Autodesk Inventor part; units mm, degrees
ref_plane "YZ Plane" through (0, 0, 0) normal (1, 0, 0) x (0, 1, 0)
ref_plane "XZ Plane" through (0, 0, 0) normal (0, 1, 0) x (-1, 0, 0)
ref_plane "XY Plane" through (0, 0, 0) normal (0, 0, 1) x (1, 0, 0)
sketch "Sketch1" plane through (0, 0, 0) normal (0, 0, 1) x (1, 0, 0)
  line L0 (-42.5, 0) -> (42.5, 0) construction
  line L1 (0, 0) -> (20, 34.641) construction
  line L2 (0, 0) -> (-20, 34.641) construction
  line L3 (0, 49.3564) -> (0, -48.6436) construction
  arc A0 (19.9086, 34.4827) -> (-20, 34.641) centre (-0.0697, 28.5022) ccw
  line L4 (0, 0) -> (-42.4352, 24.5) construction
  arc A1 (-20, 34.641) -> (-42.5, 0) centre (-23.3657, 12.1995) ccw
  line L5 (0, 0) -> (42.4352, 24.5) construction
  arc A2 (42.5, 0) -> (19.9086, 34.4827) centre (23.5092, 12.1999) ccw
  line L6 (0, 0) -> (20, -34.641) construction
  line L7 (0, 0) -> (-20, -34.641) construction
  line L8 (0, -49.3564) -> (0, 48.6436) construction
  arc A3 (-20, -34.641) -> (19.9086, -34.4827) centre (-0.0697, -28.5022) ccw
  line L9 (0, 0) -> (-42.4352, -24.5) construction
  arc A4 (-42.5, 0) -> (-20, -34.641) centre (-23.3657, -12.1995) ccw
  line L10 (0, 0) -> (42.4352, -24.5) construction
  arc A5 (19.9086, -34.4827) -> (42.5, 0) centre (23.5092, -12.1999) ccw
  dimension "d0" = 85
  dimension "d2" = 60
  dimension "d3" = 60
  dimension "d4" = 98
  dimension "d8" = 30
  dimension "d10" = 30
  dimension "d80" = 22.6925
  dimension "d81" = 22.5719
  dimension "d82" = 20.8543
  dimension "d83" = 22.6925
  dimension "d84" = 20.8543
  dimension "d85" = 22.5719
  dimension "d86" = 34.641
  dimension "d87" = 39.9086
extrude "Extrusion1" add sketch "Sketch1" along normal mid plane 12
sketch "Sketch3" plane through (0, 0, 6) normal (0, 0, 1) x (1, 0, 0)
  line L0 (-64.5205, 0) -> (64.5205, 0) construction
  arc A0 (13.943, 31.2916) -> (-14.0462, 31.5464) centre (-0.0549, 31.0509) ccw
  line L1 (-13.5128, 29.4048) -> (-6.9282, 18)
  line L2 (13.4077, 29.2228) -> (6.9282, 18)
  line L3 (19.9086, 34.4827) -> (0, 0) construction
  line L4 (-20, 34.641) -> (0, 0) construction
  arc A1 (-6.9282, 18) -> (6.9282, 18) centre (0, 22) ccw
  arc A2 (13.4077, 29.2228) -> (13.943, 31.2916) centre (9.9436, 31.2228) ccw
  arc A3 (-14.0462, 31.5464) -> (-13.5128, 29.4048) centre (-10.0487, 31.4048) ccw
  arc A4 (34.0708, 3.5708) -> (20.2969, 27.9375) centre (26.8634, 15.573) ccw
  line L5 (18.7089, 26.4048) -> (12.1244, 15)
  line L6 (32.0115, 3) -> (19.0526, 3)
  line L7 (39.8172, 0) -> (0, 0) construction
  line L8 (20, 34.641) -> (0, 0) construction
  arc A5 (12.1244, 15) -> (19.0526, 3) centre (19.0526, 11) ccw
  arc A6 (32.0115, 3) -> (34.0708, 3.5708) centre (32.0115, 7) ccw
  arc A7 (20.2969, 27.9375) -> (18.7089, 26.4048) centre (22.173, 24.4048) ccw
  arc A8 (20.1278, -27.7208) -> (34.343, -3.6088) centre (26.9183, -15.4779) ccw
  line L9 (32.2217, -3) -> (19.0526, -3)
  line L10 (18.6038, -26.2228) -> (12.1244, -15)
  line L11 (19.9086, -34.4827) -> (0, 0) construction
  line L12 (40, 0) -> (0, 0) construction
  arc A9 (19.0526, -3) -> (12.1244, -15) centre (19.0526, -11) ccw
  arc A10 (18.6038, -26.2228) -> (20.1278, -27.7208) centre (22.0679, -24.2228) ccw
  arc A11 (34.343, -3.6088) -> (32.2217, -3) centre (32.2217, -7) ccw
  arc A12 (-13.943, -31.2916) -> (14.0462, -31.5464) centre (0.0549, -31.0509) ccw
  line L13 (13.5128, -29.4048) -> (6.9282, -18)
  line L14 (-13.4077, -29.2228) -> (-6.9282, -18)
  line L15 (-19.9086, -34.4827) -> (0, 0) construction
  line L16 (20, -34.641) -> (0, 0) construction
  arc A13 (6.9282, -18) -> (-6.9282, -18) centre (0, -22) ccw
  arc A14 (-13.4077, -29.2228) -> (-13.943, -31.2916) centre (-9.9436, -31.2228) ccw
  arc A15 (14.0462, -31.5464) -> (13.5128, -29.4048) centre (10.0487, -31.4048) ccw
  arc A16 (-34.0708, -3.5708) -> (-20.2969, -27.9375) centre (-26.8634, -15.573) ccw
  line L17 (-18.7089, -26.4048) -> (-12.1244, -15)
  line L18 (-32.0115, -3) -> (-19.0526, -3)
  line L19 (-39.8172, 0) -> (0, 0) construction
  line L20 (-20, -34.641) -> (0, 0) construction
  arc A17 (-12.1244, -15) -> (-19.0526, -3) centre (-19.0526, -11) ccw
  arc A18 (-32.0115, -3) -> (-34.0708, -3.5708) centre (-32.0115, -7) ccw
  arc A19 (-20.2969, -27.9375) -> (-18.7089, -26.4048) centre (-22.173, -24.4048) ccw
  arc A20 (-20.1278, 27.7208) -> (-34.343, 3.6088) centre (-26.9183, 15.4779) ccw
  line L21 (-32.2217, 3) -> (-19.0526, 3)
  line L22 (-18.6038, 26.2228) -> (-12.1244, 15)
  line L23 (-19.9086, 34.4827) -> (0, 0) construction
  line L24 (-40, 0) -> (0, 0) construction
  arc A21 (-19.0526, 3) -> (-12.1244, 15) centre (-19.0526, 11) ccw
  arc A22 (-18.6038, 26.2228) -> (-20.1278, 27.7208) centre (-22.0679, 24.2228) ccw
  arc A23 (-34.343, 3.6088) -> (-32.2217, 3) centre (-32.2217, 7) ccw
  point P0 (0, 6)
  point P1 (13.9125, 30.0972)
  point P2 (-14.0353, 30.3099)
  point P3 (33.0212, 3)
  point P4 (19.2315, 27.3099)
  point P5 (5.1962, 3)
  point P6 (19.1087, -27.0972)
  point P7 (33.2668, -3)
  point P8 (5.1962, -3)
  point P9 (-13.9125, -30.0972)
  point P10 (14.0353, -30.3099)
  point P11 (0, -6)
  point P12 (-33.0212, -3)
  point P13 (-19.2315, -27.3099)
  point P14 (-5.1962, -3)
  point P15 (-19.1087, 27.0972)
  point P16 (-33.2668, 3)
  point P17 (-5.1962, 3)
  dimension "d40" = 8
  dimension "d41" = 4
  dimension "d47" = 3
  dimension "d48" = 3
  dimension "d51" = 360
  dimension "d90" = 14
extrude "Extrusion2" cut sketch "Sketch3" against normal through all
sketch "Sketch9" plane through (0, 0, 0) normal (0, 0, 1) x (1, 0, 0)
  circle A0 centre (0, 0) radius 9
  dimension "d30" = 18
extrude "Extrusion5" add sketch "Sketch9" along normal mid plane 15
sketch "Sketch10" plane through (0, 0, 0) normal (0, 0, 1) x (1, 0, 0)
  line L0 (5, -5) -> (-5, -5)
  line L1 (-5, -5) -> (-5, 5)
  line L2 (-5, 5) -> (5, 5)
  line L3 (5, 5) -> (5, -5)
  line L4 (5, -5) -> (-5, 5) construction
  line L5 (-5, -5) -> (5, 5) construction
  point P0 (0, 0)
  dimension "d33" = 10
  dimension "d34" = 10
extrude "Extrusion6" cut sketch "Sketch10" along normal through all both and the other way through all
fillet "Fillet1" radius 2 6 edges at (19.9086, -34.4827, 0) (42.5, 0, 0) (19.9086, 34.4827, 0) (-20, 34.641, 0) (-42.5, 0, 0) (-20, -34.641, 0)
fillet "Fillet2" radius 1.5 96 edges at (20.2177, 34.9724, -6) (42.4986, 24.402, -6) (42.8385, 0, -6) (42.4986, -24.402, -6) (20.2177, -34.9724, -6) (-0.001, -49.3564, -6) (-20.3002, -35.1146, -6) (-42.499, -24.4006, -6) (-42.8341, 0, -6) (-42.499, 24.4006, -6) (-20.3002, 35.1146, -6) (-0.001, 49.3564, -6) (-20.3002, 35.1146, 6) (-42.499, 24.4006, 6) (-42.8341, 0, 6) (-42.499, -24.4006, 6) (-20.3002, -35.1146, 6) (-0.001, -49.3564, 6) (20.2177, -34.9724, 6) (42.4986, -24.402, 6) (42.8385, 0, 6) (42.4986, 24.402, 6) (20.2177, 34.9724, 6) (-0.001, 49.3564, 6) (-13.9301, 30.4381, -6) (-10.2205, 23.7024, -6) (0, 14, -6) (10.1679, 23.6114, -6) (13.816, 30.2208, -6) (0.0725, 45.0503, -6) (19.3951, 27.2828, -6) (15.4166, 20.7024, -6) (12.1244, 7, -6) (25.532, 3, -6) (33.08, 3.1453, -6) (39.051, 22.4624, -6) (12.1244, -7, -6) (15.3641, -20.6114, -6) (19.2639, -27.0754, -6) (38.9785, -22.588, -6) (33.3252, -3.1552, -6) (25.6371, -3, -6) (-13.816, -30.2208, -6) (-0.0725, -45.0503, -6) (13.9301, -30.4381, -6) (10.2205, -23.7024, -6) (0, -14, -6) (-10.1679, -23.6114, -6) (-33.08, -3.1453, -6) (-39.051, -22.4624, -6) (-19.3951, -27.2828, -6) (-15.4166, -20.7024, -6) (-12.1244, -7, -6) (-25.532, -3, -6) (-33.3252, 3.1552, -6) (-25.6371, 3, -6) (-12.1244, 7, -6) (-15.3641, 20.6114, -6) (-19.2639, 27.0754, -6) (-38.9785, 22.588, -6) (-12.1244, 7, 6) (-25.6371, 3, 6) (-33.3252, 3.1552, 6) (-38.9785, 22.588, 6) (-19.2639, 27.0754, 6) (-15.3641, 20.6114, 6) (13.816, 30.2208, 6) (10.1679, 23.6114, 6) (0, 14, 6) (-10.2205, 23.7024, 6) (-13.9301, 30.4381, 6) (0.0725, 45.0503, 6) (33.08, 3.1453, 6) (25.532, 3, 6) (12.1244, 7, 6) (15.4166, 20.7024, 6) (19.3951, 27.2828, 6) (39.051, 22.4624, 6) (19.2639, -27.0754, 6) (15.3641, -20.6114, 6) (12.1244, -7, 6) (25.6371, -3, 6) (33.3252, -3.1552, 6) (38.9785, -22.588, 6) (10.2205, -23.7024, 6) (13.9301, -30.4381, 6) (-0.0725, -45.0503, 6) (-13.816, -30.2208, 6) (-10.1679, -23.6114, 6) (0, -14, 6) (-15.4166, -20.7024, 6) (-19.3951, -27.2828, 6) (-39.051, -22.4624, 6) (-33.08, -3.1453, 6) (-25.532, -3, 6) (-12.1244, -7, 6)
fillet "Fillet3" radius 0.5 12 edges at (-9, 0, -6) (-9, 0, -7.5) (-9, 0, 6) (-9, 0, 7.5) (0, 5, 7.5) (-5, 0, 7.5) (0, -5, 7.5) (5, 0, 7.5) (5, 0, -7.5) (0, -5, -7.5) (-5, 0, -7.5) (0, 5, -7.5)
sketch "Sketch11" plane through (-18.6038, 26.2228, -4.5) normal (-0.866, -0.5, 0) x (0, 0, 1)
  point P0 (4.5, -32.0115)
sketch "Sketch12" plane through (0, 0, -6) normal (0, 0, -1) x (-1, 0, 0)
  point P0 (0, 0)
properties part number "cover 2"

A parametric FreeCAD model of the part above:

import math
import FreeCAD as App
import Part
import Sketcher
Q = App.Units.Quantity


def edges_at(feature, points):
    """Names of the edges that pass closest to the given points."""
    edges = feature.Shape.Edges
    near = lambda p: min(range(len(edges)), key=lambda i: edges[i].distToShape(Part.Vertex(*p))[0])
    return sorted({f"Edge{near(p) + 1}" for p in points})


def add_polygon(sketch, points):
    """Adds a closed chain of lines whose ends are joined by coincident constraints."""
    first, n = sketch.GeometryCount, len(points)
    for a, b in zip(points, points[1:] + points[:1]):
        sketch.addGeometry(Part.LineSegment(App.Vector(*a, 0), App.Vector(*b, 0)), False)
    for i in range(n):
        sketch.addConstraint(Sketcher.Constraint("Coincident", first + i, 2, first + (i + 1) % n, 1))

doc = App.newDocument("Part")
params = doc.addObject("Spreadsheet::Sheet", "Params")
for row, (alias, value) in enumerate([
    ("pad1_length", "12 mm"),
    ("sketch2_radius", "4 mm"),
    ("sketch2_radius2", "14 mm"),
    ("sketch2_radius3", "8 mm"),
    ("sketch2_width", "1.94 mm"),
    ("sketch3_diameter", "18 mm"),
    ("pad2_length", "15 mm"),
    ("sketch4_width", "10 mm"),
    ("fillet_radius", "2 mm"),
    ("fillet2_radius", "1.5 mm"),
    ("fillet3_radius", "0.5 mm"),
], start=1):
    params.set(f"A{row}", alias)
    params.set(f"B{row}", "=" + value)
    params.setAlias(f"B{row}", alias)

body = doc.addObject("PartDesign::Body", "Body")

sketch1 = body.newObject("Sketcher::SketchObject", "Sketch")
sketch1.AttachmentSupport = (doc.getObject("XY_Plane"), [""])
sketch1.MapMode = "FlatFace"
sketch1.addGeometry([
    Part.ArcOfCircle(Part.Circle(App.Vector(24, 12, 0), App.Vector(0, 0, 1), 23), math.radians(-33), math.radians(99)),
    Part.ArcOfCircle(Part.Circle(App.Vector(0, 29, 0), App.Vector(0, 0, 1), 21), math.radians(17), math.radians(163)),
    Part.ArcOfCircle(Part.Circle(App.Vector(-23, 12, 0), App.Vector(0, 0, 1), 23), math.radians(81), math.radians(213)),
    Part.ArcOfCircle(Part.Circle(App.Vector(-23, -12, 0), App.Vector(0, 0, 1), 23), math.radians(147), math.radians(279)),
    Part.ArcOfCircle(Part.Circle(App.Vector(0, -29, 0), App.Vector(0, 0, 1), 21), math.radians(-163), math.radians(-17)),
    Part.ArcOfCircle(Part.Circle(App.Vector(24, -12, 0), App.Vector(0, 0, 1), 23), math.radians(-99), math.radians(33)),
], False)
sketch1.addConstraint([
    Sketcher.Constraint("Coincident", 0, 2, 1, 1),
    Sketcher.Constraint("Coincident", 1, 2, 2, 1),
    Sketcher.Constraint("Coincident", 2, 2, 3, 1),
    Sketcher.Constraint("Coincident", 3, 2, 4, 1),
    Sketcher.Constraint("Coincident", 4, 2, 5, 1),
    Sketcher.Constraint("Coincident", 5, 2, 0, 1),
    Sketcher.Constraint("Equal", 2, 3),
    Sketcher.Constraint("Equal", 1, 4),
    Sketcher.Constraint("Equal", 0, 5),
    Sketcher.Constraint("Symmetric", 2, 2, 5, 2, -1, 1),
    Sketcher.Constraint("Symmetric", 2, 3, 3, 3, -1),
    Sketcher.Constraint("Symmetric", 1, 3, 4, 3, -1),
    Sketcher.Constraint("Vertical", 0, 3, 5, 3),
    Sketcher.Constraint("Radius", 0, Q("22.5718 mm")),
    Sketcher.Constraint("Radius", 1, Q("20.8542 mm")),
    Sketcher.Constraint("Radius", 2, Q("22.6925 mm")),
    Sketcher.Constraint("DistanceY", -1, 1, 1, 2, Q("34.641 mm")),
    Sketcher.Constraint("DistanceX", 1, 2, -1, 1, Q("20 mm")),
    Sketcher.Constraint("DistanceY", -1, 1, 0, 3, Q("12.2 mm")),
    Sketcher.Constraint("DistanceX", 2, 2, -1, 1, Q("42.5 mm")),
    Sketcher.Constraint("DistanceX", 1, 2, 0, 2, Q("39.9085 mm")),
])
pad1 = body.newObject("PartDesign::Pad", "Pad")
pad1.Profile = sketch1
pad1.setExpression("Length", "Params.pad1_length")
pad1.Midplane = True

sketch2 = body.newObject("Sketcher::SketchObject", "Sketch001")
sketch2.AttachmentSupport = (doc.getObject("XY_Plane"), [""])
sketch2.MapMode = "FlatFace"
sketch2.AttachmentOffset = App.Placement(App.Vector(0, 0, 6), App.Rotation())
sketch2.addGeometry([
    Part.ArcOfCircle(Part.Circle(App.Vector(9.9, 31.2, 0), App.Vector(0, 0, 1), 4), math.radians(-30), math.radians(1)),
    Part.ArcOfCircle(Part.Circle(App.Vector(-0.1, 31.1, 0), App.Vector(0, 0, 1), 14), math.radians(1), math.radians(178)),
    Part.ArcOfCircle(Part.Circle(App.Vector(-10, 31.4, 0), App.Vector(0, 0, 1), 4), math.radians(178), math.radians(210)),
    Part.LineSegment(App.Vector(-13.5, 29.4, 0), App.Vector(-6.9, 18, 0)),
    Part.ArcOfCircle(Part.Circle(App.Vector(0, 22, 0), App.Vector(0, 0, 1), 8), math.radians(-150), math.radians(-30)),
    Part.LineSegment(App.Vector(6.9, 18, 0), App.Vector(13.4, 29.2, 0)),
    Part.ArcOfCircle(Part.Circle(App.Vector(32, 7, 0), App.Vector(0, 0, 1), 4), math.radians(-90), math.radians(-59)),
    Part.ArcOfCircle(Part.Circle(App.Vector(26.9, 15.6, 0), App.Vector(0, 0, 1), 14), math.radians(-59), math.radians(118)),
    Part.ArcOfCircle(Part.Circle(App.Vector(22.2, 24.4, 0), App.Vector(0, 0, 1), 4), math.radians(118), math.radians(150)),
    Part.LineSegment(App.Vector(18.7, 26.4, 0), App.Vector(12.1, 15, 0)),
    Part.ArcOfCircle(Part.Circle(App.Vector(19.1, 11, 0), App.Vector(0, 0, 1), 8), math.radians(150), math.radians(270)),
    Part.LineSegment(App.Vector(19.1, 3, 0), App.Vector(32, 3, 0)),
    Part.ArcOfCircle(Part.Circle(App.Vector(22.1, -24.2, 0), App.Vector(0, 0, 1), 4), math.radians(-150), math.radians(-119)),
    Part.ArcOfCircle(Part.Circle(App.Vector(26.9, -15.5, 0), App.Vector(0, 0, 1), 14), math.radians(-119), math.radians(58)),
    Part.ArcOfCircle(Part.Circle(App.Vector(32.2, -7, 0), App.Vector(0, 0, 1), 4), math.radians(58), math.radians(90)),
    Part.LineSegment(App.Vector(32.2, -3, 0), App.Vector(19.1, -3, 0)),
    Part.ArcOfCircle(Part.Circle(App.Vector(19.1, -11, 0), App.Vector(0, 0, 1), 8), math.radians(90), math.radians(210)),
    Part.LineSegment(App.Vector(12.1, -15, 0), App.Vector(18.6, -26.2, 0)),
    Part.ArcOfCircle(Part.Circle(App.Vector(-9.9, -31.2, 0), App.Vector(0, 0, 1), 4), math.radians(150), math.radians(181)),
    Part.ArcOfCircle(Part.Circle(App.Vector(0.1, -31.1, 0), App.Vector(0, 0, 1), 14), math.radians(-179), math.radians(-2)),
    Part.ArcOfCircle(Part.Circle(App.Vector(10, -31.4, 0), App.Vector(0, 0, 1), 4), math.radians(-2), math.radians(30)),
    Part.LineSegment(App.Vector(13.5, -29.4, 0), App.Vector(6.9, -18, 0)),
    Part.ArcOfCircle(Part.Circle(App.Vector(0, -22, 0), App.Vector(0, 0, 1), 8), math.radians(30), math.radians(150)),
    Part.LineSegment(App.Vector(-6.9, -18, 0), App.Vector(-13.4, -29.2, 0)),
    Part.ArcOfCircle(Part.Circle(App.Vector(-32, -7, 0), App.Vector(0, 0, 1), 4), math.radians(90), math.radians(121)),
    Part.ArcOfCircle(Part.Circle(App.Vector(-26.9, -15.6, 0), App.Vector(0, 0, 1), 14), math.radians(121), math.radians(298)),
    Part.ArcOfCircle(Part.Circle(App.Vector(-22.2, -24.4, 0), App.Vector(0, 0, 1), 4), math.radians(-62), math.radians(-30)),
    Part.LineSegment(App.Vector(-18.7, -26.4, 0), App.Vector(-12.1, -15, 0)),
    Part.ArcOfCircle(Part.Circle(App.Vector(-19.1, -11, 0), App.Vector(0, 0, 1), 8), math.radians(-30), math.radians(90)),
    Part.LineSegment(App.Vector(-19.1, -3, 0), App.Vector(-32, -3, 0)),
    Part.ArcOfCircle(Part.Circle(App.Vector(-22.1, 24.2, 0), App.Vector(0, 0, 1), 4), math.radians(30), math.radians(61)),
    Part.ArcOfCircle(Part.Circle(App.Vector(-26.9, 15.5, 0), App.Vector(0, 0, 1), 14), math.radians(61), math.radians(238)),
    Part.ArcOfCircle(Part.Circle(App.Vector(-32.2, 7, 0), App.Vector(0, 0, 1), 4), math.radians(-122), math.radians(-90)),
    Part.LineSegment(App.Vector(-32.2, 3, 0), App.Vector(-19.1, 3, 0)),
    Part.ArcOfCircle(Part.Circle(App.Vector(-19.1, 11, 0), App.Vector(0, 0, 1), 8), math.radians(-90), math.radians(30)),
    Part.LineSegment(App.Vector(-12.1, 15, 0), App.Vector(-18.6, 26.2, 0)),
], False)
sketch2.addConstraint([
    Sketcher.Constraint("Tangent", 0, 2, 1, 1),
    Sketcher.Constraint("Tangent", 1, 2, 2, 1),
    Sketcher.Constraint("Tangent", 2, 2, 3, 1),
    Sketcher.Constraint("Tangent", 3, 2, 4, 1),
    Sketcher.Constraint("Tangent", 4, 2, 5, 1),
    Sketcher.Constraint("Tangent", 5, 2, 0, 1),
    Sketcher.Constraint("Tangent", 6, 2, 7, 1),
    Sketcher.Constraint("Tangent", 7, 2, 8, 1),
    Sketcher.Constraint("Tangent", 8, 2, 9, 1),
    Sketcher.Constraint("Tangent", 9, 2, 10, 1),
    Sketcher.Constraint("Tangent", 10, 2, 11, 1),
    Sketcher.Constraint("Tangent", 11, 2, 6, 1),
    Sketcher.Constraint("Tangent", 12, 2, 13, 1),
    Sketcher.Constraint("Tangent", 13, 2, 14, 1),
    Sketcher.Constraint("Tangent", 14, 2, 15, 1),
    Sketcher.Constraint("Tangent", 15, 2, 16, 1),
    Sketcher.Constraint("Tangent", 16, 2, 17, 1),
    Sketcher.Constraint("Tangent", 17, 2, 12, 1),
    Sketcher.Constraint("Tangent", 18, 2, 19, 1),
    Sketcher.Constraint("Tangent", 19, 2, 20, 1),
    Sketcher.Constraint("Tangent", 20, 2, 21, 1),
    Sketcher.Constraint("Tangent", 21, 2, 22, 1),
    Sketcher.Constraint("Tangent", 22, 2, 23, 1),
    Sketcher.Constraint("Tangent", 23, 2, 18, 1),
    Sketcher.Constraint("Tangent", 24, 2, 25, 1),
    Sketcher.Constraint("Tangent", 25, 2, 26, 1),
    Sketcher.Constraint("Tangent", 26, 2, 27, 1),
    Sketcher.Constraint("Tangent", 27, 2, 28, 1),
    Sketcher.Constraint("Tangent", 28, 2, 29, 1),
    Sketcher.Constraint("Tangent", 29, 2, 24, 1),
    Sketcher.Constraint("Tangent", 30, 2, 31, 1),
    Sketcher.Constraint("Tangent", 31, 2, 32, 1),
    Sketcher.Constraint("Tangent", 32, 2, 33, 1),
    Sketcher.Constraint("Tangent", 33, 2, 34, 1),
    Sketcher.Constraint("Tangent", 34, 2, 35, 1),
    Sketcher.Constraint("Tangent", 35, 2, 30, 1),
    Sketcher.Constraint("Horizontal", 11),
    Sketcher.Constraint("Horizontal", 15),
    Sketcher.Constraint("Horizontal", 29),
    Sketcher.Constraint("Horizontal", 33),
    Sketcher.Constraint("Equal", 0, 2),
    Sketcher.Constraint("Equal", 2, 6),
    Sketcher.Constraint("Equal", 1, 7),
    Sketcher.Constraint("Equal", 6, 8),
    Sketcher.Constraint("Equal", 4, 10),
    Sketcher.Constraint("Equal", 8, 12),
    Sketcher.Constraint("Equal", 7, 13),
    Sketcher.Constraint("Equal", 12, 14),
    Sketcher.Constraint("Equal", 10, 16),
    Sketcher.Constraint("Equal", 14, 18),
    Sketcher.Constraint("Equal", 13, 19),
    Sketcher.Constraint("Equal", 18, 20),
    Sketcher.Constraint("Equal", 16, 22),
    Sketcher.Constraint("Equal", 20, 24),
    Sketcher.Constraint("Equal", 19, 25),
    Sketcher.Constraint("Equal", 24, 26),
    Sketcher.Constraint("Equal", 22, 28),
    Sketcher.Constraint("Equal", 26, 30),
    Sketcher.Constraint("Equal", 25, 31),
    Sketcher.Constraint("Equal", 30, 32),
    Sketcher.Constraint("Equal", 28, 34),
    Sketcher.Constraint("Symmetric", 0, 3, 18, 3, -1, 1),
    Sketcher.Constraint("Symmetric", 2, 3, 20, 3, -1, 1),
    Sketcher.Constraint("Symmetric", 4, 3, 22, 3, -1, 1),
    Sketcher.Constraint("Symmetric", 6, 3, 24, 3, -1, 1),
    Sketcher.Constraint("Symmetric", 8, 3, 26, 3, -1, 1),
    Sketcher.Constraint("Symmetric", 12, 3, 30, 3, -1, 1),
    Sketcher.Constraint("Symmetric", 14, 3, 32, 3, -1, 1),
    Sketcher.Constraint("Symmetric", 16, 3, 28, 3, -2),
    Sketcher.Constraint("Symmetric", 3, 2, 4, 2, -2),
    Sketcher.Constraint("Symmetric", 9, 2, 34, 2, -2),
    Sketcher.Constraint("Parallel", 5, 9),
    Sketcher.Constraint("Parallel", 3, 17),
    Sketcher.Constraint("Equal", 3, 9),
    Sketcher.Constraint("Equal", 5, 17),
    Sketcher.Constraint("Radius", 0, Q("4 mm")),
    Sketcher.Constraint("Radius", 1, Q("14 mm")),
    Sketcher.Constraint("Radius", 4, Q("8 mm")),
    Sketcher.Constraint("DistanceY", -1, 1, 10, 2, Q("3 mm")),
    Sketcher.Constraint("DistanceY", 3, 2, 4, 3, Q("4 mm")),
    Sketcher.Constraint("DistanceY", 9, 2, 4, 2, Q("3 mm")),
    Sketcher.Constraint("DistanceX", 0, 3, 0, 2, Q("3.9994 mm")),
    Sketcher.Constraint("DistanceX", 11, 1, 11, 2, Q("12.959 mm")),
    Sketcher.Constraint("DistanceX", 15, 2, 15, 1, Q("13.169 mm")),
    Sketcher.Constraint("DistanceX", 0, 2, 8, 3, Q("8.23 mm")),
    Sketcher.Constraint("DistanceX", 12, 2, 12, 3, Q("1.94 mm")),
])
sketch2.setExpression("Constraints[75]", "Params.sketch2_radius")
sketch2.setExpression("Constraints[76]", "Params.sketch2_radius2")
sketch2.setExpression("Constraints[77]", "Params.sketch2_radius3")
sketch2.setExpression("Constraints[85]", "Params.sketch2_width")
pocket1 = body.newObject("PartDesign::Pocket", "Pocket")
pocket1.Profile = sketch2
pocket1.Type = "ThroughAll"

sketch3 = body.newObject("Sketcher::SketchObject", "Sketch002")
sketch3.AttachmentSupport = (doc.getObject("XY_Plane"), [""])
sketch3.MapMode = "FlatFace"
sketch3.addGeometry(Part.Circle(App.Vector(0, 0, 0), App.Vector(0, 0, 1), 9), False)
sketch3.addConstraint([
    Sketcher.Constraint("Coincident", 0, 3, -1, 1),
    Sketcher.Constraint("Diameter", 0, Q("18 mm")),
])
sketch3.setExpression("Constraints[1]", "Params.sketch3_diameter")
pad2 = body.newObject("PartDesign::Pad", "Pad001")
pad2.Profile = sketch3
pad2.setExpression("Length", "Params.pad2_length")
pad2.Midplane = True

sketch4 = body.newObject("Sketcher::SketchObject", "Sketch003")
sketch4.AttachmentSupport = (doc.getObject("XY_Plane"), [""])
sketch4.MapMode = "FlatFace"
add_polygon(sketch4, [(-5, -5), (5, -5), (5, 5), (-5, 5)])
sketch4.addConstraint([
    Sketcher.Constraint("Horizontal", 0),
    Sketcher.Constraint("Vertical", 1),
    Sketcher.Constraint("Horizontal", 2),
    Sketcher.Constraint("Vertical", 3),
    Sketcher.Constraint("Symmetric", 0, 2, 2, 2, -1, 1),
    Sketcher.Constraint("Equal", 2, 1),
    Sketcher.Constraint("DistanceX", 0, 1, 0, 2, Q("10 mm")),
])
sketch4.setExpression("Constraints[10]", "Params.sketch4_width")
pocket2 = body.newObject("PartDesign::Pocket", "Pocket001")
pocket2.Profile = sketch4
pocket2.Type = "ThroughAll"
pocket2.Midplane = True
doc.recompute()

fillet = body.newObject("PartDesign::Fillet", "Fillet")
fillet.Base = (pocket2, edges_at(pocket2, [
    (19.909, -34.483, 0),
    (42.5, 0, 0),
    (19.909, 34.483, 0),
    (-20, 34.641, 0),
    (-42.5, 0, 0),
    (-20, -34.641, 0),
]))
fillet.setExpression("Radius", "Params.fillet_radius")
doc.recompute()

fillet2 = body.newObject("PartDesign::Fillet", "Fillet001")
fillet2.Base = (fillet, edges_at(fillet, [
    (20.218, 34.972, -6),
    (42.499, 24.402, -6),
    (42.839, 0, -6),
    (42.499, -24.402, -6),
    (20.218, -34.972, -6),
    (-0.001, -49.356, -6),
    (-20.3, -35.115, -6),
    (-42.499, -24.401, -6),
    (-42.834, 0, -6),
    (-42.499, 24.401, -6),
    (-20.3, 35.115, -6),
    (-0.001, 49.356, -6),
    (-20.3, 35.115, 6),
    (-42.499, 24.401, 6),
    (-42.834, 0, 6),
    (-42.499, -24.401, 6),
    (-20.3, -35.115, 6),
    (-0.001, -49.356, 6),
    (20.218, -34.972, 6),
    (42.499, -24.402, 6),
    (42.839, 0, 6),
    (42.499, 24.402, 6),
    (20.218, 34.972, 6),
    (-0.001, 49.356, 6),
    (-13.93, 30.438, -6),
    (-10.22, 23.702, -6),
    (0, 14, -6),
    (10.168, 23.611, -6),
    (13.816, 30.221, -6),
    (0.072, 45.05, -6),
    (19.395, 27.283, -6),
    (15.417, 20.702, -6),
    (12.124, 7, -6),
    (25.532, 3, -6),
    (33.08, 3.145, -6),
    (39.051, 22.462, -6),
    (12.124, -7, -6),
    (15.364, -20.611, -6),
    (19.264, -27.075, -6),
    (38.978, -22.588, -6),
    (33.325, -3.155, -6),
    (25.637, -3, -6),
    (-13.816, -30.221, -6),
    (-0.072, -45.05, -6),
    (13.93, -30.438, -6),
    (10.22, -23.702, -6),
    (0, -14, -6),
    (-10.168, -23.611, -6),
    (-33.08, -3.145, -6),
    (-39.051, -22.462, -6),
    (-19.395, -27.283, -6),
    (-15.417, -20.702, -6),
    (-12.124, -7, -6),
    (-25.532, -3, -6),
    (-33.325, 3.155, -6),
    (-25.637, 3, -6),
    (-12.124, 7, -6),
    (-15.364, 20.611, -6),
    (-19.264, 27.075, -6),
    (-38.978, 22.588, -6),
    (-12.124, 7, 6),
    (-25.637, 3, 6),
    (-33.325, 3.155, 6),
    (-38.978, 22.588, 6),
    (-19.264, 27.075, 6),
    (-15.364, 20.611, 6),
    (13.816, 30.221, 6),
    (10.168, 23.611, 6),
    (0, 14, 6),
    (-10.22, 23.702, 6),
    (-13.93, 30.438, 6),
    (0.072, 45.05, 6),
    (33.08, 3.145, 6),
    (25.532, 3, 6),
    (12.124, 7, 6),
    (15.417, 20.702, 6),
    (19.395, 27.283, 6),
    (39.051, 22.462, 6),
    (19.264, -27.075, 6),
    (15.364, -20.611, 6),
    (12.124, -7, 6),
    (25.637, -3, 6),
    (33.325, -3.155, 6),
    (38.978, -22.588, 6),
    (10.22, -23.702, 6),
    (13.93, -30.438, 6),
    (-0.072, -45.05, 6),
    (-13.816, -30.221, 6),
    (-10.168, -23.611, 6),
    (0, -14, 6),
    (-15.417, -20.702, 6),
    (-19.395, -27.283, 6),
    (-39.051, -22.462, 6),
    (-33.08, -3.145, 6),
    (-25.532, -3, 6),
    (-12.124, -7, 6),
]))
fillet2.setExpression("Radius", "Params.fillet2_radius")
doc.recompute()

fillet3 = body.newObject("PartDesign::Fillet", "Fillet002")
fillet3.Base = (fillet2, edges_at(fillet2, [
    (-9, 0, -6),
    (-9, 0, -7.5),
    (-9, 0, 6),
    (-9, 0, 7.5),
    (0, 5, 7.5),
    (-5, 0, 7.5),
    (0, -5, 7.5),
    (5, 0, 7.5),
    (5, 0, -7.5),
    (0, -5, -7.5),
    (-5, 0, -7.5),
    (0, 5, -7.5),
]))
fillet3.setExpression("Radius", "Params.fillet3_radius")

doc.recompute()
